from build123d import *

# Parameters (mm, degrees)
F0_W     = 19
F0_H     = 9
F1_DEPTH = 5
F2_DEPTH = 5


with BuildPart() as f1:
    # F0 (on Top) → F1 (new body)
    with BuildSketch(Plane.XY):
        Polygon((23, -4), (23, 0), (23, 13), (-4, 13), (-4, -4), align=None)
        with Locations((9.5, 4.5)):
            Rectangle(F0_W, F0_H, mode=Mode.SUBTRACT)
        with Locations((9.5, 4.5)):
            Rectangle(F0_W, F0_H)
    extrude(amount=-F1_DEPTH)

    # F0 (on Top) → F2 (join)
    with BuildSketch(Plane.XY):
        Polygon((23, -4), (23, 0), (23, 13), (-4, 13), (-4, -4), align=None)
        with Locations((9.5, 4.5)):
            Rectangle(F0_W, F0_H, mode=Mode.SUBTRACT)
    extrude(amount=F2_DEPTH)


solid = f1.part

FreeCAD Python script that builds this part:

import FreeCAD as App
import Part
import Sketcher

doc = App.newDocument("Part")
body = doc.addObject("PartDesign::Body", "Body")

# Sketch on XY plane
sketch1 = body.newObject("Sketcher::SketchObject", "Sketch")
sketch1.AttachmentSupport = (doc.getObject("XY_Plane"), [""])
sketch1.MapMode = "FlatFace"
sketch1.addGeometry([
    Part.LineSegment(App.Vector(23, -4, 0), App.Vector(23, 13, 0)),
    Part.LineSegment(App.Vector(23, 13, 0), App.Vector(-4, 13, 0)),
    Part.LineSegment(App.Vector(-4, 13, 0), App.Vector(-4, -4, 0)),
    Part.LineSegment(App.Vector(-4, -4, 0), App.Vector(23, -4, 0)),
], False)
sketch1.addConstraint([
    Sketcher.Constraint("Coincident", 0, 2, 1, 1),
    Sketcher.Constraint("Coincident", 1, 2, 2, 1),
    Sketcher.Constraint("Coincident", 2, 2, 3, 1),
    Sketcher.Constraint("Coincident", 3, 2, 0, 1),
    Sketcher.Constraint("Vertical", 0),
    Sketcher.Constraint("Horizontal", 1),
    Sketcher.Constraint("Vertical", 2),
    Sketcher.Constraint("Horizontal", 3),
    Sketcher.Constraint("DistanceX", 1, 2, 1, 1, 27.0),
    Sketcher.Constraint("DistanceY", 0, 1, 0, 2, 17.0),
    Sketcher.Constraint("DistanceX", -1, 1, 0, 2, 23.0),
    Sketcher.Constraint("DistanceY", -1, 1, 0, 2, 13.0),
])
pad1 = body.newObject("PartDesign::Pad", "Pad")
pad1.Profile = sketch1
pad1.Length = 5
pad1.Reversed = True

# Sketch on XY plane
sketch2 = body.newObject("Sketcher::SketchObject", "Sketch001")
sketch2.AttachmentSupport = (doc.getObject("XY_Plane"), [""])
sketch2.MapMode = "FlatFace"
sketch2.addGeometry([
    Part.LineSegment(App.Vector(23, -4, 0), App.Vector(23, 13, 0)),  # 0
    Part.LineSegment(App.Vector(23, 13, 0), App.Vector(-4, 13, 0)),  # 1
    Part.LineSegment(App.Vector(-4, 13, 0), App.Vector(-4, -4, 0)),  # 2
    Part.LineSegment(App.Vector(-4, -4, 0), App.Vector(23, -4, 0)),  # 3
    Part.LineSegment(App.Vector(19, 0, 0), App.Vector(0, 0, 0)),  # 4
    Part.LineSegment(App.Vector(0, 0, 0), App.Vector(0, 9, 0)),  # 5
    Part.LineSegment(App.Vector(0, 9, 0), App.Vector(19, 9, 0)),  # 6
    Part.LineSegment(App.Vector(19, 9, 0), App.Vector(19, 0, 0)),  # 7
], False)
sketch2.addConstraint([
    Sketcher.Constraint("Coincident", 0, 2, 1, 1),
    Sketcher.Constraint("Coincident", 1, 2, 2, 1),
    Sketcher.Constraint("Coincident", 2, 2, 3, 1),
    Sketcher.Constraint("Coincident", 3, 2, 0, 1),
    Sketcher.Constraint("Coincident", 4, 2, 5, 1),
    Sketcher.Constraint("Coincident", 5, 2, 6, 1),
    Sketcher.Constraint("Coincident", 6, 2, 7, 1),
    Sketcher.Constraint("Coincident", 7, 2, 4, 1),
    Sketcher.Constraint("Vertical", 0),
    Sketcher.Constraint("Horizontal", 1),
    Sketcher.Constraint("Vertical", 2),
    Sketcher.Constraint("Horizontal", 3),
    Sketcher.Constraint("Horizontal", 4),
    Sketcher.Constraint("Vertical", 5),
    Sketcher.Constraint("Horizontal", 6),
    Sketcher.Constraint("Vertical", 7),
    Sketcher.Constraint("Coincident", 4, 2, -1, 1),
    Sketcher.Constraint("DistanceX", 1, 2, 1, 1, 27.0),
    Sketcher.Constraint("DistanceX", 4, 2, 4, 1, 19.0),
    Sketcher.Constraint("DistanceY", 0, 1, 0, 2, 17.0),
    Sketcher.Constraint("DistanceY", 5, 1, 5, 2, 9.0),
    Sketcher.Constraint("DistanceX", -1, 1, 0, 2, 23.0),
    Sketcher.Constraint("DistanceY", -1, 1, 0, 2, 13.0),
])
pad2 = body.newObject("PartDesign::Pad", "Pad001")
pad2.Profile = sketch2
pad2.Length = 5

doc.recompute()
